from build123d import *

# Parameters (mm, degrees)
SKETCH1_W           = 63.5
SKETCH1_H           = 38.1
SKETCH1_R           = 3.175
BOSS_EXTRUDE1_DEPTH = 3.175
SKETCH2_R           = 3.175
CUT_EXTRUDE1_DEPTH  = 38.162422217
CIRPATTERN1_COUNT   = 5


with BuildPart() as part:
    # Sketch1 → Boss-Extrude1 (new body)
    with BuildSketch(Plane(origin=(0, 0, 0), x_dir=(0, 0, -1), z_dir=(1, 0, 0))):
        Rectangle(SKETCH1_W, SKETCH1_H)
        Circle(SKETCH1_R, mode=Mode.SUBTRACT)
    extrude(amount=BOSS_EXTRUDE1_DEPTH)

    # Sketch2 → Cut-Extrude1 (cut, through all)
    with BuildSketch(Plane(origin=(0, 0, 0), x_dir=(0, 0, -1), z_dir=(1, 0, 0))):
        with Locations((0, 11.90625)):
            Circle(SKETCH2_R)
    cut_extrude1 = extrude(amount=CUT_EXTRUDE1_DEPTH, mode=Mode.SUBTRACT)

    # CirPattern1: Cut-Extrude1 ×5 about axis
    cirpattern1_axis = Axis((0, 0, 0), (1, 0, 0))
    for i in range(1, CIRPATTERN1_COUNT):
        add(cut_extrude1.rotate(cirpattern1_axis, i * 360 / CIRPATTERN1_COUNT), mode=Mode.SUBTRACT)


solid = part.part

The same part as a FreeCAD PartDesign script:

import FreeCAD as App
import Part
import Sketcher
Q = App.Units.Quantity


def add_polygon(sketch, points):
    """Adds a closed chain of lines whose ends are joined by coincident constraints."""
    first, n = sketch.GeometryCount, len(points)
    for a, b in zip(points, points[1:] + points[:1]):
        sketch.addGeometry(Part.LineSegment(App.Vector(*a, 0), App.Vector(*b, 0)), False)
    for i in range(n):
        sketch.addConstraint(Sketcher.Constraint("Coincident", first + i, 2, first + (i + 1) % n, 1))

doc = App.newDocument("Part")
params = doc.addObject("Spreadsheet::Sheet", "Params")
for row, (alias, value) in enumerate([
    ("sketch1_diameter", "0.25 in"),
    ("sketch1_width", "1.5 in"),
    ("sketch1_height", "2.5 in"),
    ("pad1_length", "0.125 in"),
    ("sketch2_diameter", "0.25 in"),
], start=1):
    params.set(f"A{row}", alias)
    params.set(f"B{row}", "=" + value)
    params.setAlias(f"B{row}", alias)

body = doc.addObject("PartDesign::Body", "Body")

sketch1 = body.newObject("Sketcher::SketchObject", "Sketch")
sketch1.AttachmentSupport = (doc.getObject("YZ_Plane"), [""])
sketch1.MapMode = "FlatFace"
add_polygon(sketch1, [(19.05, 31.75), (-19.05, 31.75), (-19.05, -31.75), (19.05, -31.75)])
sketch1.addGeometry(Part.Circle(App.Vector(0, 0, 0), App.Vector(0, 0, 1), 3.175), False)
sketch1.addConstraint([
    Sketcher.Constraint("Horizontal", 0),
    Sketcher.Constraint("Vertical", 1),
    Sketcher.Constraint("Horizontal", 2),
    Sketcher.Constraint("Vertical", 3),
    Sketcher.Constraint("Coincident", 4, 3, -1, 1),
    Sketcher.Constraint("Symmetric", 0, 2, 2, 2, -1, 1),
    Sketcher.Constraint("Diameter", 4, Q("0.25 in")),
    Sketcher.Constraint("DistanceX", 0, 2, 0, 1, Q("1.5 in")),
    Sketcher.Constraint("DistanceY", 1, 2, 1, 1, Q("2.5 in")),
])
sketch1.setExpression("Constraints[10]", "Params.sketch1_diameter")
sketch1.setExpression("Constraints[11]", "Params.sketch1_width")
sketch1.setExpression("Constraints[12]", "Params.sketch1_height")
pad1 = body.newObject("PartDesign::Pad", "Pad")
pad1.Profile = sketch1
pad1.setExpression("Length", "Params.pad1_length")

sketch2 = body.newObject("Sketcher::SketchObject", "Sketch001")
sketch2.AttachmentSupport = (doc.getObject("YZ_Plane"), [""])
sketch2.MapMode = "FlatFace"
sketch2.addGeometry(Part.Circle(App.Vector(11.90625, 0, 0), App.Vector(0, 0, 1), 3.175), False)
sketch2.addConstraint([
    Sketcher.Constraint("PointOnObject", 0, 3, -1),
    Sketcher.Constraint("Diameter", 0, Q("0.25 in")),
    Sketcher.Constraint("DistanceX", -1, 1, 0, 3, Q("0.46875 in")),
])
sketch2.setExpression("Constraints[1]", "Params.sketch2_diameter")
pocket1 = body.newObject("PartDesign::Pocket", "Pocket")
pocket1.Profile = sketch2
pocket1.Type = "ThroughAll"
pocket1.Reversed = True
doc.recompute()

polarpattern = body.newObject("PartDesign::PolarPattern", "PolarPattern")
polarpattern.Originals = [pocket1]
polarpattern.Axis = (doc.getObject("X_Axis"), [""])
polarpattern.Angle = 360
polarpattern.Occurrences = 5
body.Tip = polarpattern

doc.recompute()
